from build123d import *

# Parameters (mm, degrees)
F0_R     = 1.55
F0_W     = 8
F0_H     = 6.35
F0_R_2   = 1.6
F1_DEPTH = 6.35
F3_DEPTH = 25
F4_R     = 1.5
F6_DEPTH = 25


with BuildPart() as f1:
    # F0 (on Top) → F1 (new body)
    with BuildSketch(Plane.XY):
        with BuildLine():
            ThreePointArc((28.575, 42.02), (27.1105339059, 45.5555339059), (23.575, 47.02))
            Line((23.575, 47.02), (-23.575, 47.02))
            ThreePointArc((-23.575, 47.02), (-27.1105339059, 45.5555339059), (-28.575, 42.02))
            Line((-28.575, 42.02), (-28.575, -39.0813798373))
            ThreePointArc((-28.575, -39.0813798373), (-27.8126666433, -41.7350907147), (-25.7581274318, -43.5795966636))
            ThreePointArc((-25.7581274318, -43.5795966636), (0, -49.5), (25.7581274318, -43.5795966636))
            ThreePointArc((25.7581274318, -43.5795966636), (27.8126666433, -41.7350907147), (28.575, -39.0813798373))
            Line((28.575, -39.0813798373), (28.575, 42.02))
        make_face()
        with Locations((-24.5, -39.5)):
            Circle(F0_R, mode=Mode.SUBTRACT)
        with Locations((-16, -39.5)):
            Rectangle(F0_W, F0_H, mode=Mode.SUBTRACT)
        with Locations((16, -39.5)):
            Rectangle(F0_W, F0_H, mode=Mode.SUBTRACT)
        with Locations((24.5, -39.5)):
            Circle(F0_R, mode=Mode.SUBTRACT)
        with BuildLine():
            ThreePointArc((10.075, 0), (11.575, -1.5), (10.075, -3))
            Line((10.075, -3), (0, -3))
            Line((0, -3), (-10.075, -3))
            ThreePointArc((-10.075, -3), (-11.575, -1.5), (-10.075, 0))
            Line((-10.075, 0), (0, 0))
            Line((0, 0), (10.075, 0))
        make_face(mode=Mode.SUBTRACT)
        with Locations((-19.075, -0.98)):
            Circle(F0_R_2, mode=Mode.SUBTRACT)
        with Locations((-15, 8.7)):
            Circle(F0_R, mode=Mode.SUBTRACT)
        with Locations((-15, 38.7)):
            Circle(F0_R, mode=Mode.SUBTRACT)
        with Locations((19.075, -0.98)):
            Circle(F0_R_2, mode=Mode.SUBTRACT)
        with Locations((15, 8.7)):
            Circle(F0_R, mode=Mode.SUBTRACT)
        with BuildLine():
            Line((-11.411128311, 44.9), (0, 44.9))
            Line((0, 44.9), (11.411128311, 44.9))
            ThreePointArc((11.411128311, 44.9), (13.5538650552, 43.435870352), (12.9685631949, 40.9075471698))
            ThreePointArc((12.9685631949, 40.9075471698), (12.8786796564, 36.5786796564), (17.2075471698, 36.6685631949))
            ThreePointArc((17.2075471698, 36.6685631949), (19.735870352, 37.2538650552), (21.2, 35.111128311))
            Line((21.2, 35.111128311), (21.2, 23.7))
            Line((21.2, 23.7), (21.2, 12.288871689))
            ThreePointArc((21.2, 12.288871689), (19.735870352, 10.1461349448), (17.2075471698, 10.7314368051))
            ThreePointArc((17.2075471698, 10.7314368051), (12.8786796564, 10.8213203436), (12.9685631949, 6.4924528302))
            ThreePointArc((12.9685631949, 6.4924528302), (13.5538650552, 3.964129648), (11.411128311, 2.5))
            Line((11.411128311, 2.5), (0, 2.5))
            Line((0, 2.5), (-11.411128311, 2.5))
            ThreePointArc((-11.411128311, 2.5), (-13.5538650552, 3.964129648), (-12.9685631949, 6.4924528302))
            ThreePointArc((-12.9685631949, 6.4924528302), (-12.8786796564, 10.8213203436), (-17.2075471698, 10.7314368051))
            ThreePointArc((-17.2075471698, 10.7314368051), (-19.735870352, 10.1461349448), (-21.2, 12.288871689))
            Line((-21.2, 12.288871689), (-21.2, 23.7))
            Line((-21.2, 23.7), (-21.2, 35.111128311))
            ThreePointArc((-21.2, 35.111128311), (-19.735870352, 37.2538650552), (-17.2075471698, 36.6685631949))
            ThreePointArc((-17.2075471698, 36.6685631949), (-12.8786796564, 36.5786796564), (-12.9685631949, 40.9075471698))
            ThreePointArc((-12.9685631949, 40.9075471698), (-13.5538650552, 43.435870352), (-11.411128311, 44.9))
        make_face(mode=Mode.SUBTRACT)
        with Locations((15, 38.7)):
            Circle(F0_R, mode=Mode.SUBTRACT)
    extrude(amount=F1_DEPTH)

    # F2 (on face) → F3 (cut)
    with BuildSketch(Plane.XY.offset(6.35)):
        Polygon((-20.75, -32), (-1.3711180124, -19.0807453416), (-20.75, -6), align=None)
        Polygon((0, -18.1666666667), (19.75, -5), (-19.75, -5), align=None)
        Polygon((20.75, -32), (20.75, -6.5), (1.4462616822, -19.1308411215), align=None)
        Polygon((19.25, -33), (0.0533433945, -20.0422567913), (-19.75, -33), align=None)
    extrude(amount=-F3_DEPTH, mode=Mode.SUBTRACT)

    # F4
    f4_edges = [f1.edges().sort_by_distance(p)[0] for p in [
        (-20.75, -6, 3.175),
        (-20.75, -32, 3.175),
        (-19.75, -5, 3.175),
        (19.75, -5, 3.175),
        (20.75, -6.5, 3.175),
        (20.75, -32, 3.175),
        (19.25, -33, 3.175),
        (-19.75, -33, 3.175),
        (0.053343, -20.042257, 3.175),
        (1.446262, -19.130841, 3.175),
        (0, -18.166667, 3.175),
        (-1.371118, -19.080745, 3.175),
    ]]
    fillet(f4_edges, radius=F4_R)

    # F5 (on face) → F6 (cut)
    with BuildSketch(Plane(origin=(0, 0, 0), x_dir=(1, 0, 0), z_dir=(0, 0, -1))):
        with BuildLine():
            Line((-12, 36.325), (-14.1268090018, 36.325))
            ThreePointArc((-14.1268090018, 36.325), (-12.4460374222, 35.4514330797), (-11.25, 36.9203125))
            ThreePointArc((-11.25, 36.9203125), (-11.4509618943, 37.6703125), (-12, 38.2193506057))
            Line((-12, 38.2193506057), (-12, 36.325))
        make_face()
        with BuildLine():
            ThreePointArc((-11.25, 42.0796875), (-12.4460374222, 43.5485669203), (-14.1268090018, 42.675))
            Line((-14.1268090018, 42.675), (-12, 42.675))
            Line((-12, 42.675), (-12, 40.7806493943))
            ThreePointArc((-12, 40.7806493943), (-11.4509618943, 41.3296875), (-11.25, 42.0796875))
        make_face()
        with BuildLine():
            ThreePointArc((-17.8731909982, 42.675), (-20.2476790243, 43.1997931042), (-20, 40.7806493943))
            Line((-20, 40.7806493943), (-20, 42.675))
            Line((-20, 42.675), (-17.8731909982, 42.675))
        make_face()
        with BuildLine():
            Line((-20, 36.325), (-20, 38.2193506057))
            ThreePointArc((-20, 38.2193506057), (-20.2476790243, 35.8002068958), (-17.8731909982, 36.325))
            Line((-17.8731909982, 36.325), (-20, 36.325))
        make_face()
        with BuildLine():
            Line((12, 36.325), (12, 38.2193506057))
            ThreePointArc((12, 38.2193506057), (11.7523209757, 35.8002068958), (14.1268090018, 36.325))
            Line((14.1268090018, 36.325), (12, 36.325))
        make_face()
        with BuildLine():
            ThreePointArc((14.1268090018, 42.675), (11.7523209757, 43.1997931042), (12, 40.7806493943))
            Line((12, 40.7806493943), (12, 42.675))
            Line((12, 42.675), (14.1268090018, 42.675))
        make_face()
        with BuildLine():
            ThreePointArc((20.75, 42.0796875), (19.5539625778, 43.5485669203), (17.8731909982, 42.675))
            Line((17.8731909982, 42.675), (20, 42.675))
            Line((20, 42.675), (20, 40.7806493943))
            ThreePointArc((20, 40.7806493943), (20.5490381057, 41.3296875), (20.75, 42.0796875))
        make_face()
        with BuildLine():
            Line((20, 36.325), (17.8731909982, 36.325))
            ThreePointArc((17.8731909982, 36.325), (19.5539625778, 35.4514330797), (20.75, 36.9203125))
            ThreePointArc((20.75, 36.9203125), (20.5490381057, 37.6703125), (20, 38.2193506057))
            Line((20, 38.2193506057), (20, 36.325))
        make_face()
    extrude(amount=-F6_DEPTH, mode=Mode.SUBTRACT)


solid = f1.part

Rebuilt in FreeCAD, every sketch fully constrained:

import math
import FreeCAD as App
import Part
import Sketcher

V = App.Vector
Q = App.Units.Quantity


def edges_at(feature, points):
    """Names of the edges that pass closest to the given points."""
    edges = feature.Shape.Edges
    near = lambda p: min(range(len(edges)), key=lambda i: edges[i].distToShape(Part.Vertex(*p))[0])
    return sorted({f"Edge{near(p) + 1}" for p in points})


def add_polygon(sketch, points):
    """Adds a closed chain of lines whose ends are joined by coincident constraints."""
    first, n = sketch.GeometryCount, len(points)
    for a, b in zip(points, points[1:] + points[:1]):
        sketch.addGeometry(Part.LineSegment(App.Vector(*a, 0), App.Vector(*b, 0)), False)
    for i in range(n):
        sketch.addConstraint(Sketcher.Constraint("Coincident", first + i, 2, first + (i + 1) % n, 1))

doc = App.newDocument("Part")
params = doc.addObject("Spreadsheet::Sheet", "Params")
for row, (alias, value) in enumerate([
    ("sketch1_radius", "5 mm"),
    ("sketch1_radius2", "3 mm"),
    ("sketch1_diameter", "3.1 mm"),
    ("sketch1_diameter2", "3.2 mm"),
    ("sketch1_radius3", "1.5 mm"),
    ("pad1_length", "6.35 mm"),
    ("sketch2_width", "39 mm"),
    ("sketch2_height", "26 mm"),
    ("sketch2_width2", "39.5 mm"),
    ("sketch2_height2", "25.5 mm"),
    ("pocket1_length", "25 mm"),
    ("fillet_radius", "1.5 mm"),
    ("sketch3_radius", "1.5 mm"),
    ("pocket2_length", "25 mm"),
], start=1):
    params.set(f"A{row}", alias)
    params.set(f"B{row}", "=" + value)
    params.setAlias(f"B{row}", alias)

body = doc.addObject("PartDesign::Body", "Body")

sketch1 = doc.addObject("Sketcher::SketchObject", "Sketch")
body.addObject(sketch1)
sketch1.AttachmentSupport = (doc.XY_Plane, [""])
sketch1.MapMode = "FlatFace"
sketch1.addGeometry(Part.ArcOfCircle(Part.Circle(V(23.6, 42, 0), V(0, 0, 1), 5), math.radians(0), math.radians(90)), False)
sketch1.addGeometry(Part.LineSegment(V(23.6, 47, 0), V(-23.6, 47, 0)), False)
sketch1.addGeometry(Part.ArcOfCircle(Part.Circle(V(-23.6, 42, 0), V(0, 0, 1), 5), math.radians(90), math.radians(180)), False)
sketch1.addGeometry(Part.LineSegment(V(-28.6, 42, 0), V(-28.6, -39.1, 0)), False)
sketch1.addGeometry(Part.ArcOfCircle(Part.Circle(V(-23.6, -39.1, 0), V(0, 0, 1), 5), math.radians(180), math.radians(244)), False)
sketch1.addGeometry(Part.ArcOfCircle(Part.Circle(V(0, 9.5, 0), V(0, 0, 1), 59), math.radians(-116), math.radians(-64)), False)
sketch1.addGeometry(Part.ArcOfCircle(Part.Circle(V(23.6, -39.1, 0), V(0, 0, 1), 5), math.radians(-64), math.radians(0)), False)
sketch1.addGeometry(Part.LineSegment(V(28.6, -39.1, 0), V(28.6, 42, 0)), False)
sketch1.addGeometry(Part.Circle(V(-24.5, -39.5, 0), V(0, 0, 1), 1.6), False)
add_polygon(sketch1, [(-12, -42.7), (-20, -42.7), (-20, -36.3), (-12, -36.3)])
sketch1.addGeometry(Part.Circle(V(-19.1, -1, 0), V(0, 0, 1), 1.6), False)
add_polygon(sketch1, [(20, -42.7), (12, -42.7), (12, -36.3), (20, -36.3)])
sketch1.addGeometry(Part.Circle(V(24.5, -39.5, 0), V(0, 0, 1), 1.6), False)
sketch1.addGeometry(Part.LineSegment(V(-10.1, 0, 0), V(10.1, 0, 0)), False)
sketch1.addGeometry(Part.ArcOfCircle(Part.Circle(V(10.1, -1.5, 0), V(0, 0, 1), 1.5), math.radians(-90), math.radians(90)), False)
sketch1.addGeometry(Part.LineSegment(V(10.1, -3, 0), V(-10.1, -3, 0)), False)
sketch1.addGeometry(Part.ArcOfCircle(Part.Circle(V(-10.1, -1.5, 0), V(0, 0, 1), 1.5), math.radians(90), math.radians(270)), False)
sketch1.addGeometry(Part.Circle(V(19.1, -1, 0), V(0, 0, 1), 1.6), False)
sketch1.addGeometry(Part.Circle(V(-15, 8.7, 0), V(0, 0, 1), 1.6), False)
sketch1.addGeometry(Part.Circle(V(-15, 38.7, 0), V(0, 0, 1), 1.6), False)
sketch1.addGeometry(Part.Circle(V(15, 8.7, 0), V(0, 0, 1), 1.6), False)
sketch1.addGeometry(Part.ArcOfCircle(Part.Circle(V(-11.4, 42.6, 0), V(0, 0, 1), 2.3), math.radians(90), math.radians(227)), False)
sketch1.addGeometry(Part.LineSegment(V(-11.4, 44.9, 0), V(11.4, 44.9, 0)), False)
sketch1.addGeometry(Part.ArcOfCircle(Part.Circle(V(11.4, 42.6, 0), V(0, 0, 1), 2.3), math.radians(-47), math.radians(90)), False)
sketch1.addGeometry(Part.ArcOfCircle(Part.Circle(V(15, 38.7, 0), V(0, 0, 1), 3), math.radians(133), math.radians(317)), False)
sketch1.addGeometry(Part.ArcOfCircle(Part.Circle(V(18.9, 35.1, 0), V(0, 0, 1), 2.3), math.radians(0), math.radians(137)), False)
sketch1.addGeometry(Part.LineSegment(V(21.2, 35.1, 0), V(21.2, 12.3, 0)), False)
sketch1.addGeometry(Part.ArcOfCircle(Part.Circle(V(18.9, 12.3, 0), V(0, 0, 1), 2.3), math.radians(-137), math.radians(0)), False)
sketch1.addGeometry(Part.ArcOfCircle(Part.Circle(V(15, 8.7, 0), V(0, 0, 1), 3), math.radians(43), math.radians(227)), False)
sketch1.addGeometry(Part.ArcOfCircle(Part.Circle(V(11.4, 4.8, 0), V(0, 0, 1), 2.3), math.radians(-90), math.radians(47)), False)
sketch1.addGeometry(Part.LineSegment(V(11.4, 2.5, 0), V(-11.4, 2.5, 0)), False)
sketch1.addGeometry(Part.ArcOfCircle(Part.Circle(V(-11.4, 4.8, 0), V(0, 0, 1), 2.3), math.radians(133), math.radians(270)), False)
sketch1.addGeometry(Part.ArcOfCircle(Part.Circle(V(-15, 8.7, 0), V(0, 0, 1), 3), math.radians(-47), math.radians(137)), False)
sketch1.addGeometry(Part.ArcOfCircle(Part.Circle(V(-18.9, 12.3, 0), V(0, 0, 1), 2.3), math.radians(180), math.radians(317)), False)
sketch1.addGeometry(Part.LineSegment(V(-21.2, 12.3, 0), V(-21.2, 35.1, 0)), False)
sketch1.addGeometry(Part.ArcOfCircle(Part.Circle(V(-18.9, 35.1, 0), V(0, 0, 1), 2.3), math.radians(43), math.radians(180)), False)
sketch1.addGeometry(Part.ArcOfCircle(Part.Circle(V(-15, 38.7, 0), V(0, 0, 1), 3), math.radians(-137), math.radians(47)), False)
sketch1.addGeometry(Part.Circle(V(15, 38.7, 0), V(0, 0, 1), 1.6), False)
sketch1.addConstraint(Sketcher.Constraint("Tangent", 0, 2, 1, 1))
sketch1.addConstraint(Sketcher.Constraint("Tangent", 1, 2, 2, 1))
sketch1.addConstraint(Sketcher.Constraint("Tangent", 2, 2, 3, 1))
sketch1.addConstraint(Sketcher.Constraint("Tangent", 3, 2, 4, 1))
sketch1.addConstraint(Sketcher.Constraint("Tangent", 4, 2, 5, 1))
sketch1.addConstraint(Sketcher.Constraint("Tangent", 5, 2, 6, 1))
sketch1.addConstraint(Sketcher.Constraint("Tangent", 6, 2, 7, 1))
sketch1.addConstraint(Sketcher.Constraint("Tangent", 7, 2, 0, 1))
sketch1.addConstraint(Sketcher.Constraint("Tangent", 19, 2, 20, 2))
sketch1.addConstraint(Sketcher.Constraint("Tangent", 20, 1, 21, 1))
sketch1.addConstraint(Sketcher.Constraint("Tangent", 21, 2, 22, 2))
sketch1.addConstraint(Sketcher.Constraint("Tangent", 22, 1, 19, 1))
sketch1.addConstraint(Sketcher.Constraint("Tangent", 27, 1, 28, 1))
sketch1.addConstraint(Sketcher.Constraint("Tangent", 28, 2, 29, 2))
sketch1.addConstraint(Sketcher.Constraint("Tangent", 29, 1, 30, 1))
sketch1.addConstraint(Sketcher.Constraint("Tangent", 30, 2, 31, 2))
sketch1.addConstraint(Sketcher.Constraint("Tangent", 31, 1, 32, 1))
sketch1.addConstraint(Sketcher.Constraint("Tangent", 32, 2, 33, 2))
sketch1.addConstraint(Sketcher.Constraint("Tangent", 33, 1, 34, 1))
sketch1.addConstraint(Sketcher.Constraint("Tangent", 34, 2, 35, 2))
sketch1.addConstraint(Sketcher.Constraint("Tangent", 35, 1, 36, 1))
sketch1.addConstraint(Sketcher.Constraint("Tangent", 36, 2, 37, 2))
sketch1.addConstraint(Sketcher.Constraint("Tangent", 37, 1, 38, 1))
sketch1.addConstraint(Sketcher.Constraint("Tangent", 38, 2, 39, 2))
sketch1.addConstraint(Sketcher.Constraint("Tangent", 39, 1, 40, 1))
sketch1.addConstraint(Sketcher.Constraint("Tangent", 40, 2, 41, 2))
sketch1.addConstraint(Sketcher.Constraint("Tangent", 41, 1, 42, 1))
sketch1.addConstraint(Sketcher.Constraint("Tangent", 42, 2, 27, 2))
sketch1.addConstraint(Sketcher.Constraint("Horizontal", 1))
sketch1.addConstraint(Sketcher.Constraint("Vertical", 3))
sketch1.addConstraint(Sketcher.Constraint("Vertical", 7))
sketch1.addConstraint(Sketcher.Constraint("Horizontal", 9))
sketch1.addConstraint(Sketcher.Constraint("Vertical", 10))
sketch1.addConstraint(Sketcher.Constraint("Horizontal", 11))
sketch1.addConstraint(Sketcher.Constraint("Vertical", 12))
sketch1.addConstraint(Sketcher.Constraint("Horizontal", 14))
sketch1.addConstraint(Sketcher.Constraint("Vertical", 15))
sketch1.addConstraint(Sketcher.Constraint("Horizontal", 16))
sketch1.addConstraint(Sketcher.Constraint("Vertical", 17))
sketch1.addConstraint(Sketcher.Constraint("Horizontal", 19))
sketch1.addConstraint(Sketcher.Constraint("Horizontal", 21))
sketch1.addConstraint(Sketcher.Constraint("Horizontal", 28))
sketch1.addConstraint(Sketcher.Constraint("Vertical", 32))
sketch1.addConstraint(Sketcher.Constraint("Horizontal", 36))
sketch1.addConstraint(Sketcher.Constraint("Vertical", 40))
sketch1.addConstraint(Sketcher.Constraint("Coincident", 34, 3, 26, 3))
sketch1.addConstraint(Sketcher.Constraint("Coincident", 38, 3, 24, 3))
sketch1.addConstraint(Sketcher.Constraint("Coincident", 42, 3, 25, 3))
sketch1.addConstraint(Sketcher.Constraint("Coincident", 43, 3, 30, 3))
sketch1.addConstraint(Sketcher.Constraint("Equal", 0, 2))
sketch1.addConstraint(Sketcher.Constraint("Equal", 2, 4))
sketch1.addConstraint(Sketcher.Constraint("Equal", 4, 6))
sketch1.addConstraint(Sketcher.Constraint("Equal", 8, 18))
sketch1.addConstraint(Sketcher.Constraint("Equal", 13, 23))
sketch1.addConstraint(Sketcher.Constraint("Equal", 18, 24))
sketch1.addConstraint(Sketcher.Constraint("Equal", 24, 25))
sketch1.addConstraint(Sketcher.Constraint("Equal", 25, 26))
sketch1.addConstraint(Sketcher.Constraint("Equal", 27, 29))
sketch1.addConstraint(Sketcher.Constraint("Equal", 29, 31))
sketch1.addConstraint(Sketcher.Constraint("Equal", 31, 33))
sketch1.addConstraint(Sketcher.Constraint("Equal", 30, 34))
sketch1.addConstraint(Sketcher.Constraint("Equal", 33, 35))
sketch1.addConstraint(Sketcher.Constraint("Equal", 35, 37))
sketch1.addConstraint(Sketcher.Constraint("Equal", 34, 38))
sketch1.addConstraint(Sketcher.Constraint("Equal", 37, 39))
sketch1.addConstraint(Sketcher.Constraint("Equal", 39, 41))
sketch1.addConstraint(Sketcher.Constraint("Equal", 38, 42))
sketch1.addConstraint(Sketcher.Constraint("Equal", 26, 43))
sketch1.addConstraint(Sketcher.Constraint("Symmetric", 19, 2, 22, 1, -1, 1))
sketch1.addConstraint(Sketcher.Constraint("Symmetric", 4, 3, 6, 3, -2))
sketch1.addConstraint(Sketcher.Constraint("Symmetric", 8, 3, 18, 3, -2))
sketch1.addConstraint(Sketcher.Constraint("Symmetric", 13, 3, 23, 3, -2))
sketch1.addConstraint(Sketcher.Constraint("Symmetric", 24, 3, 26, 3, -2))
sketch1.addConstraint(Sketcher.Constraint("Symmetric", 25, 3, 30, 3, -2))
sketch1.addConstraint(Sketcher.Constraint("Symmetric", 12, 2, 14, 2, -2))
sketch1.addConstraint(Sketcher.Constraint("Symmetric", 10, 2, 16, 2, -2))
sketch1.addConstraint(Sketcher.Constraint("Horizontal", 33, 3, 39, 3))
sketch1.addConstraint(Sketcher.Constraint("Vertical", 24, 3, 25, 3))
sketch1.addConstraint(Sketcher.Constraint("Vertical", 29, 3, 35, 3))
sketch1.addConstraint(Sketcher.Constraint("Equal", 36, 32))
sketch1.addConstraint(Sketcher.Constraint("Radius", 0, Q("5 mm")))
sketch1.addConstraint(Sketcher.Constraint("Radius", 30, Q("3 mm")))
sketch1.addConstraint(Sketcher.Constraint("Diameter", 8, Q("3.1 mm")))
sketch1.addConstraint(Sketcher.Constraint("Diameter", 13, Q("3.2 mm")))
sketch1.addConstraint(Sketcher.Constraint("Radius", 20, Q("1.5 mm")))
sketch1.addConstraint(Sketcher.Constraint("Radius", 27, Q("2.3 mm")))
sketch1.addConstraint(Sketcher.Constraint("DistanceX", 9, 2, 9, 1, Q("8 mm")))
sketch1.addConstraint(Sketcher.Constraint("DistanceX", 24, 3, -1, 1, Q("15 mm")))
sketch1.addConstraint(Sketcher.Constraint("DistanceX", 9, 2, -1, 1, Q("20 mm")))
sketch1.addConstraint(Sketcher.Constraint("DistanceX", 1, 2, 1, 1, Q("47.15 mm")))
sketch1.addConstraint(Sketcher.Constraint("DistanceX", 19, 1, 19, 2, Q("20.15 mm")))
sketch1.addConstraint(Sketcher.Constraint("DistanceY", 10, 1, 10, 2, Q("6.35 mm")))
sketch1.addConstraint(Sketcher.Constraint("DistanceX", 8, 3, -1, 1, Q("24.5 mm")))
sketch1.addConstraint(Sketcher.Constraint("DistanceY", 8, 3, -1, 1, Q("39.5 mm")))
sketch1.addConstraint(Sketcher.Constraint("DistanceY", -1, 1, 24, 3, Q("8.7 mm")))
sketch1.addConstraint(Sketcher.Constraint("DistanceY", -1, 1, 25, 3, Q("38.7 mm")))
sketch1.addConstraint(Sketcher.Constraint("DistanceY", -1, 1, 27, 3, Q("42.6 mm")))
sketch1.addConstraint(Sketcher.Constraint("DistanceY", -1, 1, 0, 3, Q("42.02 mm")))
sketch1.addConstraint(Sketcher.Constraint("DistanceY", 13, 3, -1, 1, Q("0.98 mm")))
sketch1.addConstraint(Sketcher.Constraint("Radius", 5, Q("58.993642 mm")))
sketch1.addConstraint(Sketcher.Constraint("DistanceX", 13, 3, -1, 1, Q("19.075 mm")))
sketch1.addConstraint(Sketcher.Constraint("DistanceY", 9, 2, -1, 1, Q("42.675 mm")))
sketch1.addConstraint(Sketcher.Constraint("DistanceY", 3, 2, 3, 1, Q("81.10138 mm")))
sketch1.setExpression("Constraints[88]", "Params.sketch1_radius")
sketch1.setExpression("Constraints[89]", "Params.sketch1_radius2")
sketch1.setExpression("Constraints[90]", "Params.sketch1_diameter")
sketch1.setExpression("Constraints[91]", "Params.sketch1_diameter2")
sketch1.setExpression("Constraints[92]", "Params.sketch1_radius3")
pad1 = doc.addObject("PartDesign::Pad", "Pad")
body.addObject(pad1)
pad1.Profile = sketch1
pad1.setExpression("Length", "Params.pad1_length")

sketch2 = doc.addObject("Sketcher::SketchObject", "Sketch001")
body.addObject(sketch2)
sketch2.AttachmentSupport = (doc.XY_Plane, [""])
sketch2.MapMode = "FlatFace"
sketch2.AttachmentOffset = App.Placement(V(0, 0, 6.35), App.Rotation())
add_polygon(sketch2, [(-21, -32), (-1, -19), (-21, -6)])
add_polygon(sketch2, [(0, -18), (20, -5), (-20, -5)])
add_polygon(sketch2, [(21, -32), (21, -6), (1, -19)])
add_polygon(sketch2, [(19, -33), (0, -20), (-20, -33)])
sketch2.addConstraint(Sketcher.Constraint("Vertical", 2))
sketch2.addConstraint(Sketcher.Constraint("Horizontal", 4))
sketch2.addConstraint(Sketcher.Constraint("Vertical", 6))
sketch2.addConstraint(Sketcher.Constraint("Horizontal", 11))
sketch2.addConstraint(Sketcher.Constraint("Symmetric", 2, 2, 8, 2, -2))
sketch2.addConstraint(Sketcher.Constraint("PointOnObject", 5, 2, -2))
sketch2.addConstraint(Sketcher.Constraint("Parallel", 0, 3))
sketch2.addConstraint(Sketcher.Constraint("Parallel", 5, 8))
sketch2.addConstraint(Sketcher.Constraint("Parallel", 1, 9))
sketch2.addConstraint(Sketcher.Constraint("Parallel", 7, 10))
sketch2.addConstraint(Sketcher.Constraint("Vertical", 4, 2, 10, 2))
sketch2.addConstraint(Sketcher.Constraint("Equal", 3, 5))
sketch2.addConstraint(Sketcher.Constraint("DistanceX", 11, 1, 11, 2, Q("39 mm")))
sketch2.addConstraint(Sketcher.Constraint("DistanceY", 2, 2, 2, 1, Q("26 mm")))
sketch2.addConstraint(Sketcher.Constraint("DistanceX", 4, 2, 4, 1, Q("39.5 mm")))
sketch2.addConstraint(Sketcher.Constraint("DistanceY", 6, 1, 6, 2, Q("25.5 mm")))
sketch2.addConstraint(Sketcher.Constraint("DistanceY", 1, 2, -1, 1, Q("6 mm")))
sketch2.addConstraint(Sketcher.Constraint("DistanceY", 3, 2, -1, 1, Q("5 mm")))
sketch2.addConstraint(Sketcher.Constraint("DistanceY", 10, 2, -1, 1, Q("33 mm")))
sketch2.addConstraint(Sketcher.Constraint("DistanceX", 1, 2, 4, 2, Q("1 mm")))
sketch2.addConstraint(Sketcher.Constraint("Distance", 9, Q("23.160629 mm")))
sketch2.addConstraint(Sketcher.Constraint("DistanceX", 0, 2, -1, 1, Q("1.371118 mm")))
sketch2.addConstraint(Sketcher.Constraint("DistanceX", -1, 1, 7, 2, Q("1.446262 mm")))
sketch2.setExpression("Constraints[24]", "Params.sketch2_width")
sketch2.setExpression("Constraints[25]", "Params.sketch2_height")
sketch2.setExpression("Constraints[26]", "Params.sketch2_width2")
sketch2.setExpression("Constraints[27]", "Params.sketch2_height2")
pocket1 = doc.addObject("PartDesign::Pocket", "Pocket")
body.addObject(pocket1)
pocket1.Profile = sketch2
pocket1.setExpression("Length", "Params.pocket1_length")
doc.recompute()

fillet = doc.addObject("PartDesign::Fillet", "Fillet")
body.addObject(fillet)
fillet.Base = (pocket1, edges_at(pocket1, [
    (-20.75, -6, 3.175),
    (-20.75, -32, 3.175),
    (-19.75, -5, 3.175),
    (19.75, -5, 3.175),
    (20.75, -6.5, 3.175),
    (20.75, -32, 3.175),
    (19.25, -33, 3.175),
    (-19.75, -33, 3.175),
    (0.053, -20.042, 3.175),
    (1.446, -19.131, 3.175),
    (0, -18.167, 3.175),
    (-1.371, -19.081, 3.175),
]))
fillet.setExpression("Radius", "Params.fillet_radius")

sketch3 = doc.addObject("Sketcher::SketchObject", "Sketch002")
body.addObject(sketch3)
sketch3.AttachmentSupport = (doc.XY_Plane, [""])
sketch3.MapMode = "FlatFace"
sketch3.addGeometry(Part.LineSegment(V(-12, -36.3, 0), V(-14.1, -36.3, 0)), False)
sketch3.addGeometry(Part.ArcOfCircle(Part.Circle(V(-12.8, -36.9, 0), V(0, 0, 1), 1.5), math.radians(0), math.radians(157)), False)
sketch3.addGeometry(Part.ArcOfCircle(Part.Circle(V(-12.8, -36.9, 0), V(0, 0, 1), 1.5), math.radians(-60), math.radians(0)), False)
sketch3.addGeometry(Part.LineSegment(V(-12, -38.2, 0), V(-12, -36.3, 0)), False)
sketch3.addGeometry(Part.ArcOfCircle(Part.Circle(V(-12.8, -42.1, 0), V(0, 0, 1), 1.5), math.radians(-157), math.radians(0)), False)
sketch3.addGeometry(Part.LineSegment(V(-14.1, -42.7, 0), V(-12, -42.7, 0)), False)
sketch3.addGeometry(Part.LineSegment(V(-12, -42.7, 0), V(-12, -40.8, 0)), False)
sketch3.addGeometry(Part.ArcOfCircle(Part.Circle(V(-12.8, -42.1, 0), V(0, 0, 1), 1.5), math.radians(0), math.radians(60)), False)
sketch3.addGeometry(Part.ArcOfCircle(Part.Circle(V(-19.2, -42.1, 0), V(0, 0, 1), 1.5), math.radians(120), math.radians(337)), False)
sketch3.addGeometry(Part.LineSegment(V(-20, -40.8, 0), V(-20, -42.7, 0)), False)
sketch3.addGeometry(Part.LineSegment(V(-20, -42.7, 0), V(-17.9, -42.7, 0)), False)
sketch3.addGeometry(Part.LineSegment(V(-20, -36.3, 0), V(-20, -38.2, 0)), False)
sketch3.addGeometry(Part.ArcOfCircle(Part.Circle(V(-19.2, -36.9, 0), V(0, 0, 1), 1.5), math.radians(23), math.radians(240)), False)
sketch3.addGeometry(Part.LineSegment(V(-17.9, -36.3, 0), V(-20, -36.3, 0)), False)
sketch3.addGeometry(Part.LineSegment(V(12, -36.3, 0), V(12, -38.2, 0)), False)
sketch3.addGeometry(Part.ArcOfCircle(Part.Circle(V(12.8, -36.9, 0), V(0, 0, 1), 1.5), math.radians(23), math.radians(240)), False)
sketch3.addGeometry(Part.LineSegment(V(14.1, -36.3, 0), V(12, -36.3, 0)), False)
sketch3.addGeometry(Part.ArcOfCircle(Part.Circle(V(12.8, -42.1, 0), V(0, 0, 1), 1.5), math.radians(120), math.radians(337)), False)
sketch3.addGeometry(Part.LineSegment(V(12, -40.8, 0), V(12, -42.7, 0)), False)
sketch3.addGeometry(Part.LineSegment(V(12, -42.7, 0), V(14.1, -42.7, 0)), False)
sketch3.addGeometry(Part.ArcOfCircle(Part.Circle(V(19.2, -42.1, 0), V(0, 0, 1), 1.5), math.radians(-157), math.radians(0)), False)
sketch3.addGeometry(Part.LineSegment(V(17.9, -42.7, 0), V(20, -42.7, 0)), False)
sketch3.addGeometry(Part.LineSegment(V(20, -42.7, 0), V(20, -40.8, 0)), False)
sketch3.addGeometry(Part.ArcOfCircle(Part.Circle(V(19.2, -42.1, 0), V(0, 0, 1), 1.5), math.radians(0), math.radians(60)), False)
sketch3.addGeometry(Part.LineSegment(V(20, -36.3, 0), V(17.9, -36.3, 0)), False)
sketch3.addGeometry(Part.ArcOfCircle(Part.Circle(V(19.2, -36.9, 0), V(0, 0, 1), 1.5), math.radians(0), math.radians(157)), False)
sketch3.addGeometry(Part.ArcOfCircle(Part.Circle(V(19.2, -36.9, 0), V(0, 0, 1), 1.5), math.radians(-60), math.radians(0)), False)
sketch3.addGeometry(Part.LineSegment(V(20, -38.2, 0), V(20, -36.3, 0)), False)
sketch3.addConstraint(Sketcher.Constraint("Coincident", 0, 2, 1, 2))
sketch3.addConstraint(Sketcher.Constraint("Tangent", 1, 1, 2, 2))
sketch3.addConstraint(Sketcher.Constraint("Coincident", 2, 1, 3, 1))
sketch3.addConstraint(Sketcher.Constraint("Coincident", 3, 2, 0, 1))
sketch3.addConstraint(Sketcher.Constraint("Coincident", 4, 1, 5, 1))
sketch3.addConstraint(Sketcher.Constraint("Coincident", 5, 2, 6, 1))
sketch3.addConstraint(Sketcher.Constraint("Coincident", 6, 2, 7, 2))
sketch3.addConstraint(Sketcher.Constraint("Tangent", 7, 1, 4, 2))
sketch3.addConstraint(Sketcher.Constraint("Coincident", 8, 1, 9, 1))
sketch3.addConstraint(Sketcher.Constraint("Coincident", 9, 2, 10, 1))
sketch3.addConstraint(Sketcher.Constraint("Coincident", 10, 2, 8, 2))
sketch3.addConstraint(Sketcher.Constraint("Coincident", 11, 2, 12, 2))
sketch3.addConstraint(Sketcher.Constraint("Coincident", 12, 1, 13, 1))
sketch3.addConstraint(Sketcher.Constraint("Coincident", 13, 2, 11, 1))
sketch3.addConstraint(Sketcher.Constraint("Coincident", 14, 2, 15, 2))
sketch3.addConstraint(Sketcher.Constraint("Coincident", 15, 1, 16, 1))
sketch3.addConstraint(Sketcher.Constraint("Coincident", 16, 2, 14, 1))
sketch3.addConstraint(Sketcher.Constraint("Coincident", 17, 1, 18, 1))
sketch3.addConstraint(Sketcher.Constraint("Coincident", 18, 2, 19, 1))
sketch3.addConstraint(Sketcher.Constraint("Coincident", 19, 2, 17, 2))
sketch3.addConstraint(Sketcher.Constraint("Coincident", 20, 1, 21, 1))
sketch3.addConstraint(Sketcher.Constraint("Coincident", 21, 2, 22, 1))
sketch3.addConstraint(Sketcher.Constraint("Coincident", 22, 2, 23, 2))
sketch3.addConstraint(Sketcher.Constraint("Tangent", 23, 1, 20, 2))
sketch3.addConstraint(Sketcher.Constraint("Coincident", 24, 2, 25, 2))
sketch3.addConstraint(Sketcher.Constraint("Tangent", 25, 1, 26, 2))
sketch3.addConstraint(Sketcher.Constraint("Coincident", 26, 1, 27, 1))
sketch3.addConstraint(Sketcher.Constraint("Coincident", 27, 2, 24, 1))
sketch3.addConstraint(Sketcher.Constraint("Horizontal", 0))
sketch3.addConstraint(Sketcher.Constraint("Vertical", 3))
sketch3.addConstraint(Sketcher.Constraint("Horizontal", 5))
sketch3.addConstraint(Sketcher.Constraint("Vertical", 6))
sketch3.addConstraint(Sketcher.Constraint("Vertical", 9))
sketch3.addConstraint(Sketcher.Constraint("Horizontal", 10))
sketch3.addConstraint(Sketcher.Constraint("Vertical", 11))
sketch3.addConstraint(Sketcher.Constraint("Horizontal", 13))
sketch3.addConstraint(Sketcher.Constraint("Vertical", 14))
sketch3.addConstraint(Sketcher.Constraint("Horizontal", 16))
sketch3.addConstraint(Sketcher.Constraint("Vertical", 18))
sketch3.addConstraint(Sketcher.Constraint("Horizontal", 19))
sketch3.addConstraint(Sketcher.Constraint("Horizontal", 21))
sketch3.addConstraint(Sketcher.Constraint("Vertical", 22))
sketch3.addConstraint(Sketcher.Constraint("Horizontal", 24))
sketch3.addConstraint(Sketcher.Constraint("Vertical", 27))
sketch3.addConstraint(Sketcher.Constraint("Equal", 1, 2))
sketch3.addConstraint(Sketcher.Constraint("Equal", 2, 4))
sketch3.addConstraint(Sketcher.Constraint("Equal", 4, 7))
sketch3.addConstraint(Sketcher.Constraint("Equal", 7, 8))
sketch3.addConstraint(Sketcher.Constraint("Equal", 8, 12))
sketch3.addConstraint(Sketcher.Constraint("Equal", 12, 15))
sketch3.addConstraint(Sketcher.Constraint("Equal", 15, 17))
sketch3.addConstraint(Sketcher.Constraint("Equal", 17, 20))
sketch3.addConstraint(Sketcher.Constraint("Equal", 20, 23))
sketch3.addConstraint(Sketcher.Constraint("Equal", 23, 25))
sketch3.addConstraint(Sketcher.Constraint("Equal", 25, 26))
sketch3.addConstraint(Sketcher.Constraint("Symmetric", 1, 3, 15, 3, -2))
sketch3.addConstraint(Sketcher.Constraint("Symmetric", 4, 3, 17, 3, -2))
sketch3.addConstraint(Sketcher.Constraint("Symmetric", 8, 3, 20, 3, -2))
sketch3.addConstraint(Sketcher.Constraint("Symmetric", 12, 3, 25, 3, -2))
sketch3.addConstraint(Sketcher.Constraint("Symmetric", 3, 2, 16, 2, -2))
sketch3.addConstraint(Sketcher.Constraint("Symmetric", 5, 2, 18, 2, -2))
sketch3.addConstraint(Sketcher.Constraint("Symmetric", 9, 2, 21, 2, -2))
sketch3.addConstraint(Sketcher.Constraint("Symmetric", 13, 2, 27, 2, -2))
sketch3.addConstraint(Sketcher.Constraint("Horizontal", 7, 3, 8, 3))
sketch3.addConstraint(Sketcher.Constraint("Horizontal", 2, 3, 12, 3))
sketch3.addConstraint(Sketcher.Constraint("Horizontal", 26, 3, 1, 1))
sketch3.addConstraint(Sketcher.Constraint("Horizontal", 23, 3, 7, 1))
sketch3.addConstraint(Sketcher.Constraint("Horizontal", 6, 2, 8, 1))
sketch3.addConstraint(Sketcher.Constraint("Horizontal", 5, 2, 9, 2))
sketch3.addConstraint(Sketcher.Constraint("Horizontal", 2, 1, 11, 2))
sketch3.addConstraint(Sketcher.Constraint("Horizontal", 3, 2, 12, 1))
sketch3.addConstraint(Sketcher.Constraint("Horizontal", 7, 1, 23, 1))
sketch3.addConstraint(Sketcher.Constraint("Horizontal", 1, 1, 25, 1))
sketch3.addConstraint(Sketcher.Constraint("Vertical", 2, 3, 4, 3))
sketch3.addConstraint(Sketcher.Constraint("Vertical", 8, 3, 12, 3))
sketch3.addConstraint(Sketcher.Constraint("Vertical", 0, 2, 4, 1))
sketch3.addConstraint(Sketcher.Constraint("Vertical", 3, 2, 5, 2))
sketch3.addConstraint(Sketcher.Constraint("Radius", 1, Q("1.5 mm")))
sketch3.addConstraint(Sketcher.Constraint("DistanceX", 2, 1, -1, 1, Q("12 mm")))
sketch3.addConstraint(Sketcher.Constraint("DistanceX", 8, 1, -1, 1, Q("20 mm")))
sketch3.addConstraint(Sketcher.Constraint("DistanceX", 8, 3, 4, 3, Q("6.5 mm")))
sketch3.addConstraint(Sketcher.Constraint("DistanceY", 18, 2, 16, 2, Q("6.35 mm")))
sketch3.addConstraint(Sketcher.Constraint("DistanceY", 0, 2, -1, 1, Q("36.325 mm")))
sketch3.addConstraint(Sketcher.Constraint("DistanceX", 0, 2, 0, 1, Q("2.126809 mm")))
sketch3.setExpression("Constraints[77]", "Params.sketch3_radius")
pocket2 = doc.addObject("PartDesign::Pocket", "Pocket001")
body.addObject(pocket2)
pocket2.Profile = sketch3
pocket2.setExpression("Length", "Params.pocket2_length")
pocket2.Reversed = True

doc.recompute()
